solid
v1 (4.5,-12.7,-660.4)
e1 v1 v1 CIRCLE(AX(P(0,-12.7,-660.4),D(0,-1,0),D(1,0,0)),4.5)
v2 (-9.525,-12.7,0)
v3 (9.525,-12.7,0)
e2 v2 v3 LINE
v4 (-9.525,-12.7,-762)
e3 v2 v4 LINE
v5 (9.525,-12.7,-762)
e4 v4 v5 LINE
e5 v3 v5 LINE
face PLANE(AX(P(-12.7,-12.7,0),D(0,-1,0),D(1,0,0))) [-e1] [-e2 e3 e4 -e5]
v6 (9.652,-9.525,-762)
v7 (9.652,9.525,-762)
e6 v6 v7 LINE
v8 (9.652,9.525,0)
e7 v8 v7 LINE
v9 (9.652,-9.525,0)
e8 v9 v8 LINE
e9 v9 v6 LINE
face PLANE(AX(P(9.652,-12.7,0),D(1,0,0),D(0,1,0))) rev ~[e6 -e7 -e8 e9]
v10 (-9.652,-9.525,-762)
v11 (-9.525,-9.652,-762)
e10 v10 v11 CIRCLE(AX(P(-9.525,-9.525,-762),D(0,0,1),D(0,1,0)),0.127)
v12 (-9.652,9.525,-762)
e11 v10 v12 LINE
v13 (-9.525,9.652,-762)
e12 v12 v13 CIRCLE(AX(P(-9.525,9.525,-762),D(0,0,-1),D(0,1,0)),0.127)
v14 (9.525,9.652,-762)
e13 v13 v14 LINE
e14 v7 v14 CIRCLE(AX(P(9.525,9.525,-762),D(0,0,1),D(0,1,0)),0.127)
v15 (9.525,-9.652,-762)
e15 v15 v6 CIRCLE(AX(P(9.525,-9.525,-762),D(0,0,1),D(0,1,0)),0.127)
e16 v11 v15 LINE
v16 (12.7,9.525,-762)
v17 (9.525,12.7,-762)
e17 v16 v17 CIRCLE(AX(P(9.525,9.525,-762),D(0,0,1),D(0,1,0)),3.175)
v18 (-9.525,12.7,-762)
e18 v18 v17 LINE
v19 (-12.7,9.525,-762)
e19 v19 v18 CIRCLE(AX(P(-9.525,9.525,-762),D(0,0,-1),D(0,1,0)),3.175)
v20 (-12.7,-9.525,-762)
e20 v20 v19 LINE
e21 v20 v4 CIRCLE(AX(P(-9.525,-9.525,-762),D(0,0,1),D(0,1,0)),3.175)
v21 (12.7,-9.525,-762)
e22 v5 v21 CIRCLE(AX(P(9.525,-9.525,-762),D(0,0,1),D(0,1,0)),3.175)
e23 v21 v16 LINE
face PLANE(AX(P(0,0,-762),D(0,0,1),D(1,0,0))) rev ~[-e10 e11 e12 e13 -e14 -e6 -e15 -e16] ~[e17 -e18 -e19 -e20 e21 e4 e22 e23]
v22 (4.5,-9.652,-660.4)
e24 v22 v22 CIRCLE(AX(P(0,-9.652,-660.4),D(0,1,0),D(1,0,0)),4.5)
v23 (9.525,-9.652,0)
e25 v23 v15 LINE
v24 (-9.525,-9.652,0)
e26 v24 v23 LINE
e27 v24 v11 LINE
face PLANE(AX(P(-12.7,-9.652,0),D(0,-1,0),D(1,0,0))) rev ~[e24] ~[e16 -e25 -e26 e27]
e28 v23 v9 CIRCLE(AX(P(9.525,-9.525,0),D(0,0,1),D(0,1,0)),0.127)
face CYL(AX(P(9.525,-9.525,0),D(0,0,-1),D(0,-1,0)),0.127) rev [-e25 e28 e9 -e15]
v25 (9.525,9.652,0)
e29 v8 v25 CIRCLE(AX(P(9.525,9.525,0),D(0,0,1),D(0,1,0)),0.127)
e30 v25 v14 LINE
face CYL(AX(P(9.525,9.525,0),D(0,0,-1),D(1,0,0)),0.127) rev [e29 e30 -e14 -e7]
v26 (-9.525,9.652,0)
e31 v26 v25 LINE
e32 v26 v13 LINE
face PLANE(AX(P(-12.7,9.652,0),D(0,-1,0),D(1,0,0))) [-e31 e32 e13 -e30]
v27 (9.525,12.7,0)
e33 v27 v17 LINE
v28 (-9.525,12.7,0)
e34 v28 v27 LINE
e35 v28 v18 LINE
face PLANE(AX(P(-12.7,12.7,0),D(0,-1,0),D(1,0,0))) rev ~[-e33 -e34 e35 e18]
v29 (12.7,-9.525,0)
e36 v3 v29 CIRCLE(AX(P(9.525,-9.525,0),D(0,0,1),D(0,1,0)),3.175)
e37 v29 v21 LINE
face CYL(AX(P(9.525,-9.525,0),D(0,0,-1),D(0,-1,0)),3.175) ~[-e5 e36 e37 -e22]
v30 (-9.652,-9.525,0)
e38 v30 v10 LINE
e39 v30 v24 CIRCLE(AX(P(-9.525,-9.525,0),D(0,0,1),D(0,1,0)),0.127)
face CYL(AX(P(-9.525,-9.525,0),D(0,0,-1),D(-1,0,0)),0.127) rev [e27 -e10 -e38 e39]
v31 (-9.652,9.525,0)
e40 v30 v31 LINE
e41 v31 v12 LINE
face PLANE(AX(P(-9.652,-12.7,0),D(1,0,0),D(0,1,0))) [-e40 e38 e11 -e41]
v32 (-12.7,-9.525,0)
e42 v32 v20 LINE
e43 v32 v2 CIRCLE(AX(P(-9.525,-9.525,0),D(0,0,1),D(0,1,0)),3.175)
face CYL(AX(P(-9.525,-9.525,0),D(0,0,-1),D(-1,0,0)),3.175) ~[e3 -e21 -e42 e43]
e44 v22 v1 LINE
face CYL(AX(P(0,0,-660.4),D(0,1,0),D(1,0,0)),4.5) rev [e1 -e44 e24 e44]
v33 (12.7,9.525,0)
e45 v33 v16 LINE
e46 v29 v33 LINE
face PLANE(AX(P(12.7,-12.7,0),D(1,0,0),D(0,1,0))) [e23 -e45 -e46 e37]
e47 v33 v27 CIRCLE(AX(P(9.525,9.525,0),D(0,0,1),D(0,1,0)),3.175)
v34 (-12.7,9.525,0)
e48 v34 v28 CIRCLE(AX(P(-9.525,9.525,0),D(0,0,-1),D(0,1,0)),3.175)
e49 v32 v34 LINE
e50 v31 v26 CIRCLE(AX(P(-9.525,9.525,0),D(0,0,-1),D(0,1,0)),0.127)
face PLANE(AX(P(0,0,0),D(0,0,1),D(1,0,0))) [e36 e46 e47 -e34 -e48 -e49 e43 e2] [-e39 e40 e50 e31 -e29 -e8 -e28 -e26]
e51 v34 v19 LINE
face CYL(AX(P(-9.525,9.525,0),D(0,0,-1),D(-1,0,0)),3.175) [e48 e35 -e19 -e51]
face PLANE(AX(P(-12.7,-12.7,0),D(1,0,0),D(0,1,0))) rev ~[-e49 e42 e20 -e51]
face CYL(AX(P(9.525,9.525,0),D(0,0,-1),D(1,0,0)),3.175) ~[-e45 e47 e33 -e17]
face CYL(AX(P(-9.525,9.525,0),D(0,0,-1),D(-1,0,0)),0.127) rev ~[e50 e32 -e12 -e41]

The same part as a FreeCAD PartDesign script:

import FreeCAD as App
import Part
import Sketcher
Q = App.Units.Quantity


def edges_at(feature, points):
    """Names of the edges that pass closest to the given points."""
    edges = feature.Shape.Edges
    near = lambda p: min(range(len(edges)), key=lambda i: edges[i].distToShape(Part.Vertex(*p))[0])
    return sorted({f"Edge{near(p) + 1}" for p in points})


def faces_at(feature, points):
    """Names of the faces that lie closest to the given points."""
    faces = feature.Shape.Faces
    near = lambda p: min(range(len(faces)), key=lambda i: faces[i].distToShape(Part.Vertex(*p))[0])
    return sorted({f"Face{near(p) + 1}" for p in points})

doc = App.newDocument("Part")
body = doc.addObject("PartDesign::Body", "Body")

sketch1 = body.newObject("Sketcher::SketchObject", "Sketch")
sketch1.AttachmentSupport = (doc.getObject("XY_Plane"), [""])
sketch1.MapMode = "FlatFace"
sketch1.addGeometry([
    Part.LineSegment(App.Vector(-13, 13, 0), App.Vector(-13, -13, 0)),
    Part.LineSegment(App.Vector(-13, -13, 0), App.Vector(13, -13, 0)),
    Part.LineSegment(App.Vector(13, -13, 0), App.Vector(13, 13, 0)),
    Part.LineSegment(App.Vector(13, 13, 0), App.Vector(-13, 13, 0)),
], False)
sketch1.addConstraint([
    Sketcher.Constraint("Coincident", 0, 2, 1, 1),
    Sketcher.Constraint("Coincident", 1, 2, 2, 1),
    Sketcher.Constraint("Coincident", 2, 2, 3, 1),
    Sketcher.Constraint("Coincident", 3, 2, 0, 1),
    Sketcher.Constraint("Vertical", 0),
    Sketcher.Constraint("Horizontal", 1),
    Sketcher.Constraint("Vertical", 2),
    Sketcher.Constraint("Horizontal", 3),
    Sketcher.Constraint("Symmetric", 0, 2, 2, 2, -1, 1),
    Sketcher.Constraint("Equal", 3, 0),
    Sketcher.Constraint("DistanceX", 1, 1, 1, 2, Q("1 in")),
])
pad1 = body.newObject("PartDesign::Pad", "Pad")
pad1.Profile = sketch1
pad1.Length = Q("30 in")
pad1.Reversed = True
doc.recompute()

fillet = body.newObject("PartDesign::Fillet", "Fillet")
fillet.Base = (pad1, edges_at(pad1, [
    (-12.7, 12.7, -381),
    (-12.7, -12.7, -381),
    (12.7, 12.7, -381),
    (12.7, -12.7, -381),
]))
fillet.Radius = Q("0.125 in")
doc.recompute()

thickness = body.newObject("PartDesign::Thickness", "Thickness")
thickness.Base = (fillet, faces_at(fillet, [(0, 0, 0), (0, 0, -762)]))
thickness.Value = Q("0.12 in")
thickness.Reversed = True
thickness.Join = "Arc"

sketch2 = body.newObject("Sketcher::SketchObject", "Sketch001")
sketch2.AttachmentSupport = (doc.getObject("XZ_Plane"), [""])
sketch2.MapMode = "FlatFace"
sketch2.addGeometry(Part.Circle(App.Vector(0, -660.4, 0), App.Vector(0, 0, 1), 4.5), False)
sketch2.addConstraint([
    Sketcher.Constraint("PointOnObject", 0, 3, -2),
    Sketcher.Constraint("DistanceY", 0, 3, -1, 1, Q("26 in")),
    Sketcher.Constraint("Diameter", 0, 9.0),
])
pocket1 = body.newObject("PartDesign::Pocket", "Pocket")
pocket1.Profile = sketch2
pocket1.Type = "ThroughAll"
pocket1.Reversed = True

doc.recompute()
